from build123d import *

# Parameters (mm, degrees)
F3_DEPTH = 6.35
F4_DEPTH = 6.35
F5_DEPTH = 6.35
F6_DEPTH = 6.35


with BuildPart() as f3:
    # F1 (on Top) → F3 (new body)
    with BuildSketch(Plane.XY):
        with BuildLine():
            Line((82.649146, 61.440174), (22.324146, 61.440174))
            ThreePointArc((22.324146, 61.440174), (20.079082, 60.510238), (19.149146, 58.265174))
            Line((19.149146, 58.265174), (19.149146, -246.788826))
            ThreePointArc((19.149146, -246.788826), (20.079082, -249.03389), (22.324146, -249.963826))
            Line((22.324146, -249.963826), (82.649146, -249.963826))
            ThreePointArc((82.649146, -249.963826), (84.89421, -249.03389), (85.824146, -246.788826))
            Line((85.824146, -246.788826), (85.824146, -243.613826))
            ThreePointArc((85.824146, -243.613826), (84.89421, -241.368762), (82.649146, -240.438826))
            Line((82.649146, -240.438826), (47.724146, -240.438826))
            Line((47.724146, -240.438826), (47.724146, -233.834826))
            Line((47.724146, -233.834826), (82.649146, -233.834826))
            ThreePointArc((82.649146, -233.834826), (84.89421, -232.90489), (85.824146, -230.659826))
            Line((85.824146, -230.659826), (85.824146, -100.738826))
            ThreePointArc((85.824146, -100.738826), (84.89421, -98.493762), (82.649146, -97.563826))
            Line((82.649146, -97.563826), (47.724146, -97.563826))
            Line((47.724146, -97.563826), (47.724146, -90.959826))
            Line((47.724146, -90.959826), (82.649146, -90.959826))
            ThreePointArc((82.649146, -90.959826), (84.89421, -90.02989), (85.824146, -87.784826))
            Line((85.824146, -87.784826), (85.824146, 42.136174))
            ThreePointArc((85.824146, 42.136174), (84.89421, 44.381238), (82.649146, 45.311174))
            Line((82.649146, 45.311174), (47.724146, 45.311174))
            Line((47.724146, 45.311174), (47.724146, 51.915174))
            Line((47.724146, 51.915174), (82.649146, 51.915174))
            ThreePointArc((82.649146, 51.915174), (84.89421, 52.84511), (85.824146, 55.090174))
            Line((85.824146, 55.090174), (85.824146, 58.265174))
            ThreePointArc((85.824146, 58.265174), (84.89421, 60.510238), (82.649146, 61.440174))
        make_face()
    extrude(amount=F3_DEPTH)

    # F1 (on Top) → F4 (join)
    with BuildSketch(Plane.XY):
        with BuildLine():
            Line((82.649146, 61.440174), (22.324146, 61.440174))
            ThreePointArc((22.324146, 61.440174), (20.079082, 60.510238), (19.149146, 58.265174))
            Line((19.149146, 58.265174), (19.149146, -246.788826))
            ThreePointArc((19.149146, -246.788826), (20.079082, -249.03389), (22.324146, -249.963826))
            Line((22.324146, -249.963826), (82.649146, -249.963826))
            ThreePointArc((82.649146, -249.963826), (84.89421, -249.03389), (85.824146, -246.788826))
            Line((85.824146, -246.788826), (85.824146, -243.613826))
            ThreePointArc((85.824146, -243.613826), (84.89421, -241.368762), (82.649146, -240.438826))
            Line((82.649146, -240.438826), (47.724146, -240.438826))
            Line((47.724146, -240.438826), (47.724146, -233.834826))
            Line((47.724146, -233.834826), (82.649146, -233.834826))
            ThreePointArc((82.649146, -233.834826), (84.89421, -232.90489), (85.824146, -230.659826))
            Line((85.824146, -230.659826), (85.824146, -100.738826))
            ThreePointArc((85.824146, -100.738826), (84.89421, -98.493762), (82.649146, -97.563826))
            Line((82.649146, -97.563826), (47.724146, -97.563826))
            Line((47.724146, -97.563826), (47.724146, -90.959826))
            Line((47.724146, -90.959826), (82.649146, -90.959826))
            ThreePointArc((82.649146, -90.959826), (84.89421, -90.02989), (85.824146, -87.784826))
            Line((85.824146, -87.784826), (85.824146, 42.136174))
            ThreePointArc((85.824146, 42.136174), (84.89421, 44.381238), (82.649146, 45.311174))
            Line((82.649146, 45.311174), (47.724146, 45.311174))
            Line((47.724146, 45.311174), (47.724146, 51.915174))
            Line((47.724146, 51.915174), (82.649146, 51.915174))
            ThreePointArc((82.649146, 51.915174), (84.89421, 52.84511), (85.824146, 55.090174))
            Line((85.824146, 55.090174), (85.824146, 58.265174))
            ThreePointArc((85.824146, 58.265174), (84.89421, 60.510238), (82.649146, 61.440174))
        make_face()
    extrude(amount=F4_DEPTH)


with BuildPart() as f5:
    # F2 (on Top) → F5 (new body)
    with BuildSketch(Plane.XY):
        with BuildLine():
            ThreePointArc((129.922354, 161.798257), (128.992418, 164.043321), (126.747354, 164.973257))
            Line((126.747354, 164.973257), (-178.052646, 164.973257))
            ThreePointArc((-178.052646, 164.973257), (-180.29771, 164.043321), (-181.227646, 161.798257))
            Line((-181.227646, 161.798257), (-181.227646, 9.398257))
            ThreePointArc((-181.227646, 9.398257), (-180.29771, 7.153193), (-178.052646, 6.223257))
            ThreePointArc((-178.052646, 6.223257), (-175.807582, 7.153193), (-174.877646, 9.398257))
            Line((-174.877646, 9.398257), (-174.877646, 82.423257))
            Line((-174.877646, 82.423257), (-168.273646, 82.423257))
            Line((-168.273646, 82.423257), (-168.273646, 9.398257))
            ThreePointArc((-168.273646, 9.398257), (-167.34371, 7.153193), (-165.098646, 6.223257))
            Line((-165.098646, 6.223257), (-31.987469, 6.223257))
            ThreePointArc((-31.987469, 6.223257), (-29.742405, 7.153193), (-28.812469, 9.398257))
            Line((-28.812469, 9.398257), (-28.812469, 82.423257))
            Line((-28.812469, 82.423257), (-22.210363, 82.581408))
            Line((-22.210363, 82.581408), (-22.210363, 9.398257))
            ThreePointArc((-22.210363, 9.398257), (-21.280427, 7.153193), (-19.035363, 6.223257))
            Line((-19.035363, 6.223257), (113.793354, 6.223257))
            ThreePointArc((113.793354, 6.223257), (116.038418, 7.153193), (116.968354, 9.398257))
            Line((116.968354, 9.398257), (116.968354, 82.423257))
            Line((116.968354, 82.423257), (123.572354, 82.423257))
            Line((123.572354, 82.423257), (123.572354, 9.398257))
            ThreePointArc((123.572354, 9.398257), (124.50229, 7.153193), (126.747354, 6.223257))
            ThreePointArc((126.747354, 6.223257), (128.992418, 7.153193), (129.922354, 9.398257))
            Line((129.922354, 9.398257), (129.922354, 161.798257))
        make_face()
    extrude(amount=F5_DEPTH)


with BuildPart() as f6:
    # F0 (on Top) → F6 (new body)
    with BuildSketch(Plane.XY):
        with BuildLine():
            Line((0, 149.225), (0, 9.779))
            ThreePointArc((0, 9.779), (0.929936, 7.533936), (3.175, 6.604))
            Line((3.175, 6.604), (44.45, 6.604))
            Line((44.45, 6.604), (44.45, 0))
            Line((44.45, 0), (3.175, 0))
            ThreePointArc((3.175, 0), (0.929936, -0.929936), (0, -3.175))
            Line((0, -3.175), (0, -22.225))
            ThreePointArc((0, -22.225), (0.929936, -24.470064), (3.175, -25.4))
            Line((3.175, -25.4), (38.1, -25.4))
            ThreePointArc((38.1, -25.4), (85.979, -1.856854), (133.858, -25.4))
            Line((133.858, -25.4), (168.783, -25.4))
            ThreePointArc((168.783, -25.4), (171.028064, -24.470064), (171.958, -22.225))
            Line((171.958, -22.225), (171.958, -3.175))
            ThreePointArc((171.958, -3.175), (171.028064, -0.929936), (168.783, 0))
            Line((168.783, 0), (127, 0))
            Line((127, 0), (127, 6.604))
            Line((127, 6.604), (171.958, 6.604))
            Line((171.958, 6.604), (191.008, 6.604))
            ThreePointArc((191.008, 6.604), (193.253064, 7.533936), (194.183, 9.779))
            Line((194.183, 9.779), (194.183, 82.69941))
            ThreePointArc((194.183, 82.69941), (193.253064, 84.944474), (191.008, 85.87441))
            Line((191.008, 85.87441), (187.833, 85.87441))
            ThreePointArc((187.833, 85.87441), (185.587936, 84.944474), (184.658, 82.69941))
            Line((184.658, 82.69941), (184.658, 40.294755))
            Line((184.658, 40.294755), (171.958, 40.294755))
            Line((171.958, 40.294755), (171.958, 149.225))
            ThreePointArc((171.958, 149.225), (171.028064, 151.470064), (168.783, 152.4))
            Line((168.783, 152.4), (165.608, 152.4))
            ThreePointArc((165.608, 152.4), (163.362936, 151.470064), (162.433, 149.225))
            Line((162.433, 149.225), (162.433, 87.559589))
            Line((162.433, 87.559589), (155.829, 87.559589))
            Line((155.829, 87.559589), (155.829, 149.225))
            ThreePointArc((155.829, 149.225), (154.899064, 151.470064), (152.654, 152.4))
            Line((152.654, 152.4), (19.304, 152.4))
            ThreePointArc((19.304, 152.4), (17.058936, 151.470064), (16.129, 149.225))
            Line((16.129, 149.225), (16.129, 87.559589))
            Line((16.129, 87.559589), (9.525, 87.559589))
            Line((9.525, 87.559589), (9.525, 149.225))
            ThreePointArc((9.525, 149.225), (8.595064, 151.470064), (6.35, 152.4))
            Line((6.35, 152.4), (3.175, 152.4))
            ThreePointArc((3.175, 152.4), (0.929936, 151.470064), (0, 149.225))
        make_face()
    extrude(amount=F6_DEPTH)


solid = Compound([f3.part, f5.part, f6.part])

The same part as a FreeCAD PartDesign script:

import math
import FreeCAD as App
import Part
import Sketcher

V = App.Vector
Q = App.Units.Quantity

doc = App.newDocument("Part")
params = doc.addObject("Spreadsheet::Sheet", "Params")
for row, (alias, value) in enumerate([
    ("sketch1_radius", "0.125 in"),
    ("sketch1_height", "12.01 in"),
    ("sketch1_height2", "0.26 in"),
    ("sketch1_height3", "0.125 in"),
    ("pad1_length", "0.25 in"),
    ("sketch2_radius", "0.125 in"),
    ("sketch2_height", "12.01 in"),
    ("sketch2_height2", "0.26 in"),
    ("sketch2_height3", "0.125 in"),
    ("pad2_length", "0.25 in"),
    ("sketch3_width", "12 in"),
    ("sketch3_height", "6 in"),
    ("sketch3_radius", "0.125 in"),
    ("sketch3_width2", "0.26 in"),
    ("sketch3_length", "0.26 in"),
    ("pad3_length", "0.25 in"),
    ("sketch4_width", "0.5 in"),
    ("sketch4_radius", "0.125 in"),
    ("sketch4_width2", "2.52 in"),
    ("sketch4_width3", "0.26 in"),
    ("sketch4_width4", "1.625 in"),
    ("pad4_length", "0.25 in"),
], start=1):
    params.set(f"A{row}", alias)
    params.set(f"B{row}", "=" + value)
    params.setAlias(f"B{row}", alias)

body = doc.addObject("PartDesign::Body", "Body")

sketch1 = body.newObject("Sketcher::SketchObject", "Sketch")
sketch1.AttachmentSupport = (doc.getObject("XY_Plane"), [""])
sketch1.MapMode = "FlatFace"
sketch1.addGeometry(Part.LineSegment(V(82.6, 61.4, 0), V(22.3, 61.4, 0)), False)
sketch1.addGeometry(Part.ArcOfCircle(Part.Circle(V(22.3, 58.3, 0), V(0, 0, 1), 3.2), math.radians(90), math.radians(180)), False)
sketch1.addGeometry(Part.LineSegment(V(19.1, 58.3, 0), V(19.1, -246.8, 0)), False)
sketch1.addGeometry(Part.ArcOfCircle(Part.Circle(V(22.3, -246.8, 0), V(0, 0, 1), 3.2), math.radians(-180), math.radians(-90)), False)
sketch1.addGeometry(Part.LineSegment(V(22.3, -250, 0), V(82.6, -250, 0)), False)
sketch1.addGeometry(Part.ArcOfCircle(Part.Circle(V(82.6, -246.8, 0), V(0, 0, 1), 3.2), math.radians(-90), math.radians(0)), False)
sketch1.addGeometry(Part.LineSegment(V(85.8, -246.8, 0), V(85.8, -243.6, 0)), False)
sketch1.addGeometry(Part.ArcOfCircle(Part.Circle(V(82.6, -243.6, 0), V(0, 0, 1), 3.2), math.radians(0), math.radians(90)), False)
sketch1.addGeometry(Part.LineSegment(V(82.6, -240.4, 0), V(47.7, -240.4, 0)), False)
sketch1.addGeometry(Part.LineSegment(V(47.7, -240.4, 0), V(47.7, -233.8, 0)), False)
sketch1.addGeometry(Part.LineSegment(V(47.7, -233.8, 0), V(82.6, -233.8, 0)), False)
sketch1.addGeometry(Part.ArcOfCircle(Part.Circle(V(82.6, -230.7, 0), V(0, 0, 1), 3.2), math.radians(-90), math.radians(0)), False)
sketch1.addGeometry(Part.LineSegment(V(85.8, -230.7, 0), V(85.8, -100.7, 0)), False)
sketch1.addGeometry(Part.ArcOfCircle(Part.Circle(V(82.6, -100.7, 0), V(0, 0, 1), 3.2), math.radians(0), math.radians(90)), False)
sketch1.addGeometry(Part.LineSegment(V(82.6, -97.6, 0), V(47.7, -97.6, 0)), False)
sketch1.addGeometry(Part.LineSegment(V(47.7, -97.6, 0), V(47.7, -91, 0)), False)
sketch1.addGeometry(Part.LineSegment(V(47.7, -91, 0), V(82.6, -91, 0)), False)
sketch1.addGeometry(Part.ArcOfCircle(Part.Circle(V(82.6, -87.8, 0), V(0, 0, 1), 3.2), math.radians(-90), math.radians(0)), False)
sketch1.addGeometry(Part.LineSegment(V(85.8, -87.8, 0), V(85.8, 42.1, 0)), False)
sketch1.addGeometry(Part.ArcOfCircle(Part.Circle(V(82.6, 42.1, 0), V(0, 0, 1), 3.2), math.radians(0), math.radians(90)), False)
sketch1.addGeometry(Part.LineSegment(V(82.6, 45.3, 0), V(47.7, 45.3, 0)), False)
sketch1.addGeometry(Part.LineSegment(V(47.7, 45.3, 0), V(47.7, 51.9, 0)), False)
sketch1.addGeometry(Part.LineSegment(V(47.7, 51.9, 0), V(82.6, 51.9, 0)), False)
sketch1.addGeometry(Part.ArcOfCircle(Part.Circle(V(82.6, 55.1, 0), V(0, 0, 1), 3.2), math.radians(-90), math.radians(0)), False)
sketch1.addGeometry(Part.LineSegment(V(85.8, 55.1, 0), V(85.8, 58.3, 0)), False)
sketch1.addGeometry(Part.ArcOfCircle(Part.Circle(V(82.6, 58.3, 0), V(0, 0, 1), 3.2), math.radians(0), math.radians(90)), False)
sketch1.addConstraint(Sketcher.Constraint("Tangent", 0, 2, 1, 1))
sketch1.addConstraint(Sketcher.Constraint("Tangent", 1, 2, 2, 1))
sketch1.addConstraint(Sketcher.Constraint("Tangent", 2, 2, 3, 1))
sketch1.addConstraint(Sketcher.Constraint("Tangent", 3, 2, 4, 1))
sketch1.addConstraint(Sketcher.Constraint("Tangent", 4, 2, 5, 1))
sketch1.addConstraint(Sketcher.Constraint("Tangent", 5, 2, 6, 1))
sketch1.addConstraint(Sketcher.Constraint("Tangent", 6, 2, 7, 1))
sketch1.addConstraint(Sketcher.Constraint("Tangent", 7, 2, 8, 1))
sketch1.addConstraint(Sketcher.Constraint("Coincident", 8, 2, 9, 1))
sketch1.addConstraint(Sketcher.Constraint("Coincident", 9, 2, 10, 1))
sketch1.addConstraint(Sketcher.Constraint("Tangent", 10, 2, 11, 1))
sketch1.addConstraint(Sketcher.Constraint("Tangent", 11, 2, 12, 1))
sketch1.addConstraint(Sketcher.Constraint("Tangent", 12, 2, 13, 1))
sketch1.addConstraint(Sketcher.Constraint("Tangent", 13, 2, 14, 1))
sketch1.addConstraint(Sketcher.Constraint("Coincident", 14, 2, 15, 1))
sketch1.addConstraint(Sketcher.Constraint("Coincident", 15, 2, 16, 1))
sketch1.addConstraint(Sketcher.Constraint("Tangent", 16, 2, 17, 1))
sketch1.addConstraint(Sketcher.Constraint("Tangent", 17, 2, 18, 1))
sketch1.addConstraint(Sketcher.Constraint("Tangent", 18, 2, 19, 1))
sketch1.addConstraint(Sketcher.Constraint("Tangent", 19, 2, 20, 1))
sketch1.addConstraint(Sketcher.Constraint("Coincident", 20, 2, 21, 1))
sketch1.addConstraint(Sketcher.Constraint("Coincident", 21, 2, 22, 1))
sketch1.addConstraint(Sketcher.Constraint("Tangent", 22, 2, 23, 1))
sketch1.addConstraint(Sketcher.Constraint("Tangent", 23, 2, 24, 1))
sketch1.addConstraint(Sketcher.Constraint("Tangent", 24, 2, 25, 1))
sketch1.addConstraint(Sketcher.Constraint("Tangent", 25, 2, 0, 1))
sketch1.addConstraint(Sketcher.Constraint("Horizontal", 0))
sketch1.addConstraint(Sketcher.Constraint("Vertical", 2))
sketch1.addConstraint(Sketcher.Constraint("Horizontal", 4))
sketch1.addConstraint(Sketcher.Constraint("Vertical", 6))
sketch1.addConstraint(Sketcher.Constraint("Horizontal", 8))
sketch1.addConstraint(Sketcher.Constraint("Vertical", 9))
sketch1.addConstraint(Sketcher.Constraint("Horizontal", 10))
sketch1.addConstraint(Sketcher.Constraint("Vertical", 12))
sketch1.addConstraint(Sketcher.Constraint("Horizontal", 14))
sketch1.addConstraint(Sketcher.Constraint("Vertical", 15))
sketch1.addConstraint(Sketcher.Constraint("Horizontal", 16))
sketch1.addConstraint(Sketcher.Constraint("Vertical", 18))
sketch1.addConstraint(Sketcher.Constraint("Horizontal", 20))
sketch1.addConstraint(Sketcher.Constraint("Vertical", 21))
sketch1.addConstraint(Sketcher.Constraint("Horizontal", 22))
sketch1.addConstraint(Sketcher.Constraint("Vertical", 24))
sketch1.addConstraint(Sketcher.Constraint("Equal", 1, 3))
sketch1.addConstraint(Sketcher.Constraint("Equal", 3, 5))
sketch1.addConstraint(Sketcher.Constraint("Equal", 5, 7))
sketch1.addConstraint(Sketcher.Constraint("Equal", 7, 11))
sketch1.addConstraint(Sketcher.Constraint("Equal", 11, 13))
sketch1.addConstraint(Sketcher.Constraint("Equal", 13, 17))
sketch1.addConstraint(Sketcher.Constraint("Equal", 17, 19))
sketch1.addConstraint(Sketcher.Constraint("Equal", 19, 23))
sketch1.addConstraint(Sketcher.Constraint("Equal", 23, 25))
sketch1.addConstraint(Sketcher.Constraint("Vertical", 7, 3, 11, 3))
sketch1.addConstraint(Sketcher.Constraint("Vertical", 13, 3, 17, 3))
sketch1.addConstraint(Sketcher.Constraint("Vertical", 19, 3, 23, 3))
sketch1.addConstraint(Sketcher.Constraint("Vertical", 9, 2, 14, 2))
sketch1.addConstraint(Sketcher.Constraint("Vertical", 15, 2, 20, 2))
sketch1.addConstraint(Sketcher.Constraint("Equal", 9, 15))
sketch1.addConstraint(Sketcher.Constraint("Equal", 12, 18))
sketch1.addConstraint(Sketcher.Constraint("Equal", 15, 21))
sketch1.addConstraint(Sketcher.Constraint("Equal", 6, 24))
sketch1.addConstraint(Sketcher.Constraint("Radius", 1, Q("0.125 in")))
sketch1.addConstraint(Sketcher.Constraint("DistanceX", 3, 3, 8, 2, Q("1 in")))
sketch1.addConstraint(Sketcher.Constraint("DistanceY", 2, 2, 2, 1, Q("12.01 in")))
sketch1.addConstraint(Sketcher.Constraint("DistanceY", 9, 1, 9, 2, Q("0.26 in")))
sketch1.addConstraint(Sketcher.Constraint("DistanceX", 1, 2, 25, 3, Q("2.5 in")))
sketch1.addConstraint(Sketcher.Constraint("DistanceY", 6, 1, 6, 2, Q("0.125 in")))
sketch1.addConstraint(Sketcher.Constraint("DistanceX", -1, 1, 1, 3, Q("22.324146 mm")))
sketch1.addConstraint(Sketcher.Constraint("DistanceY", -1, 1, 1, 3, Q("58.265174 mm")))
sketch1.setExpression("Constraints[60]", "Params.sketch1_radius")
sketch1.setExpression("Constraints[62]", "Params.sketch1_height")
sketch1.setExpression("Constraints[63]", "Params.sketch1_height2")
sketch1.setExpression("Constraints[65]", "Params.sketch1_height3")
pad1 = body.newObject("PartDesign::Pad", "Pad")
pad1.Profile = sketch1
pad1.setExpression("Length", "Params.pad1_length")

sketch2 = body.newObject("Sketcher::SketchObject", "Sketch001")
sketch2.AttachmentSupport = (doc.getObject("XY_Plane"), [""])
sketch2.MapMode = "FlatFace"
sketch2.addGeometry(Part.LineSegment(V(82.6, 61.4, 0), V(22.3, 61.4, 0)), False)
sketch2.addGeometry(Part.ArcOfCircle(Part.Circle(V(22.3, 58.3, 0), V(0, 0, 1), 3.2), math.radians(90), math.radians(180)), False)
sketch2.addGeometry(Part.LineSegment(V(19.1, 58.3, 0), V(19.1, -246.8, 0)), False)
sketch2.addGeometry(Part.ArcOfCircle(Part.Circle(V(22.3, -246.8, 0), V(0, 0, 1), 3.2), math.radians(-180), math.radians(-90)), False)
sketch2.addGeometry(Part.LineSegment(V(22.3, -250, 0), V(82.6, -250, 0)), False)
sketch2.addGeometry(Part.ArcOfCircle(Part.Circle(V(82.6, -246.8, 0), V(0, 0, 1), 3.2), math.radians(-90), math.radians(0)), False)
sketch2.addGeometry(Part.LineSegment(V(85.8, -246.8, 0), V(85.8, -243.6, 0)), False)
sketch2.addGeometry(Part.ArcOfCircle(Part.Circle(V(82.6, -243.6, 0), V(0, 0, 1), 3.2), math.radians(0), math.radians(90)), False)
sketch2.addGeometry(Part.LineSegment(V(82.6, -240.4, 0), V(47.7, -240.4, 0)), False)
sketch2.addGeometry(Part.LineSegment(V(47.7, -240.4, 0), V(47.7, -233.8, 0)), False)
sketch2.addGeometry(Part.LineSegment(V(47.7, -233.8, 0), V(82.6, -233.8, 0)), False)
sketch2.addGeometry(Part.ArcOfCircle(Part.Circle(V(82.6, -230.7, 0), V(0, 0, 1), 3.2), math.radians(-90), math.radians(0)), False)
sketch2.addGeometry(Part.LineSegment(V(85.8, -230.7, 0), V(85.8, -100.7, 0)), False)
sketch2.addGeometry(Part.ArcOfCircle(Part.Circle(V(82.6, -100.7, 0), V(0, 0, 1), 3.2), math.radians(0), math.radians(90)), False)
sketch2.addGeometry(Part.LineSegment(V(82.6, -97.6, 0), V(47.7, -97.6, 0)), False)
sketch2.addGeometry(Part.LineSegment(V(47.7, -97.6, 0), V(47.7, -91, 0)), False)
sketch2.addGeometry(Part.LineSegment(V(47.7, -91, 0), V(82.6, -91, 0)), False)
sketch2.addGeometry(Part.ArcOfCircle(Part.Circle(V(82.6, -87.8, 0), V(0, 0, 1), 3.2), math.radians(-90), math.radians(0)), False)
sketch2.addGeometry(Part.LineSegment(V(85.8, -87.8, 0), V(85.8, 42.1, 0)), False)
sketch2.addGeometry(Part.ArcOfCircle(Part.Circle(V(82.6, 42.1, 0), V(0, 0, 1), 3.2), math.radians(0), math.radians(90)), False)
sketch2.addGeometry(Part.LineSegment(V(82.6, 45.3, 0), V(47.7, 45.3, 0)), False)
sketch2.addGeometry(Part.LineSegment(V(47.7, 45.3, 0), V(47.7, 51.9, 0)), False)
sketch2.addGeometry(Part.LineSegment(V(47.7, 51.9, 0), V(82.6, 51.9, 0)), False)
sketch2.addGeometry(Part.ArcOfCircle(Part.Circle(V(82.6, 55.1, 0), V(0, 0, 1), 3.2), math.radians(-90), math.radians(0)), False)
sketch2.addGeometry(Part.LineSegment(V(85.8, 55.1, 0), V(85.8, 58.3, 0)), False)
sketch2.addGeometry(Part.ArcOfCircle(Part.Circle(V(82.6, 58.3, 0), V(0, 0, 1), 3.2), math.radians(0), math.radians(90)), False)
sketch2.addConstraint(Sketcher.Constraint("Tangent", 0, 2, 1, 1))
sketch2.addConstraint(Sketcher.Constraint("Tangent", 1, 2, 2, 1))
sketch2.addConstraint(Sketcher.Constraint("Tangent", 2, 2, 3, 1))
sketch2.addConstraint(Sketcher.Constraint("Tangent", 3, 2, 4, 1))
sketch2.addConstraint(Sketcher.Constraint("Tangent", 4, 2, 5, 1))
sketch2.addConstraint(Sketcher.Constraint("Tangent", 5, 2, 6, 1))
sketch2.addConstraint(Sketcher.Constraint("Tangent", 6, 2, 7, 1))
sketch2.addConstraint(Sketcher.Constraint("Tangent", 7, 2, 8, 1))
sketch2.addConstraint(Sketcher.Constraint("Coincident", 8, 2, 9, 1))
sketch2.addConstraint(Sketcher.Constraint("Coincident", 9, 2, 10, 1))
sketch2.addConstraint(Sketcher.Constraint("Tangent", 10, 2, 11, 1))
sketch2.addConstraint(Sketcher.Constraint("Tangent", 11, 2, 12, 1))
sketch2.addConstraint(Sketcher.Constraint("Tangent", 12, 2, 13, 1))
sketch2.addConstraint(Sketcher.Constraint("Tangent", 13, 2, 14, 1))
sketch2.addConstraint(Sketcher.Constraint("Coincident", 14, 2, 15, 1))
sketch2.addConstraint(Sketcher.Constraint("Coincident", 15, 2, 16, 1))
sketch2.addConstraint(Sketcher.Constraint("Tangent", 16, 2, 17, 1))
sketch2.addConstraint(Sketcher.Constraint("Tangent", 17, 2, 18, 1))
sketch2.addConstraint(Sketcher.Constraint("Tangent", 18, 2, 19, 1))
sketch2.addConstraint(Sketcher.Constraint("Tangent", 19, 2, 20, 1))
sketch2.addConstraint(Sketcher.Constraint("Coincident", 20, 2, 21, 1))
sketch2.addConstraint(Sketcher.Constraint("Coincident", 21, 2, 22, 1))
sketch2.addConstraint(Sketcher.Constraint("Tangent", 22, 2, 23, 1))
sketch2.addConstraint(Sketcher.Constraint("Tangent", 23, 2, 24, 1))
sketch2.addConstraint(Sketcher.Constraint("Tangent", 24, 2, 25, 1))
sketch2.addConstraint(Sketcher.Constraint("Tangent", 25, 2, 0, 1))
sketch2.addConstraint(Sketcher.Constraint("Horizontal", 0))
sketch2.addConstraint(Sketcher.Constraint("Vertical", 2))
sketch2.addConstraint(Sketcher.Constraint("Horizontal", 4))
sketch2.addConstraint(Sketcher.Constraint("Vertical", 6))
sketch2.addConstraint(Sketcher.Constraint("Horizontal", 8))
sketch2.addConstraint(Sketcher.Constraint("Vertical", 9))
sketch2.addConstraint(Sketcher.Constraint("Horizontal", 10))
sketch2.addConstraint(Sketcher.Constraint("Vertical", 12))
sketch2.addConstraint(Sketcher.Constraint("Horizontal", 14))
sketch2.addConstraint(Sketcher.Constraint("Vertical", 15))
sketch2.addConstraint(Sketcher.Constraint("Horizontal", 16))
sketch2.addConstraint(Sketcher.Constraint("Vertical", 18))
sketch2.addConstraint(Sketcher.Constraint("Horizontal", 20))
sketch2.addConstraint(Sketcher.Constraint("Vertical", 21))
sketch2.addConstraint(Sketcher.Constraint("Horizontal", 22))
sketch2.addConstraint(Sketcher.Constraint("Vertical", 24))
sketch2.addConstraint(Sketcher.Constraint("Equal", 1, 3))
sketch2.addConstraint(Sketcher.Constraint("Equal", 3, 5))
sketch2.addConstraint(Sketcher.Constraint("Equal", 5, 7))
sketch2.addConstraint(Sketcher.Constraint("Equal", 7, 11))
sketch2.addConstraint(Sketcher.Constraint("Equal", 11, 13))
sketch2.addConstraint(Sketcher.Constraint("Equal", 13, 17))
sketch2.addConstraint(Sketcher.Constraint("Equal", 17, 19))
sketch2.addConstraint(Sketcher.Constraint("Equal", 19, 23))
sketch2.addConstraint(Sketcher.Constraint("Equal", 23, 25))
sketch2.addConstraint(Sketcher.Constraint("Vertical", 7, 3, 11, 3))
sketch2.addConstraint(Sketcher.Constraint("Vertical", 13, 3, 17, 3))
sketch2.addConstraint(Sketcher.Constraint("Vertical", 19, 3, 23, 3))
sketch2.addConstraint(Sketcher.Constraint("Vertical", 9, 2, 14, 2))
sketch2.addConstraint(Sketcher.Constraint("Vertical", 15, 2, 20, 2))
sketch2.addConstraint(Sketcher.Constraint("Equal", 9, 15))
sketch2.addConstraint(Sketcher.Constraint("Equal", 12, 18))
sketch2.addConstraint(Sketcher.Constraint("Equal", 15, 21))
sketch2.addConstraint(Sketcher.Constraint("Equal", 6, 24))
sketch2.addConstraint(Sketcher.Constraint("Radius", 1, Q("0.125 in")))
sketch2.addConstraint(Sketcher.Constraint("DistanceX", 3, 3, 8, 2, Q("1 in")))
sketch2.addConstraint(Sketcher.Constraint("DistanceY", 2, 2, 2, 1, Q("12.01 in")))
sketch2.addConstraint(Sketcher.Constraint("DistanceY", 9, 1, 9, 2, Q("0.26 in")))
sketch2.addConstraint(Sketcher.Constraint("DistanceX", 1, 2, 25, 3, Q("2.5 in")))
sketch2.addConstraint(Sketcher.Constraint("DistanceY", 6, 1, 6, 2, Q("0.125 in")))
sketch2.addConstraint(Sketcher.Constraint("DistanceX", -1, 1, 1, 3, Q("22.324146 mm")))
sketch2.addConstraint(Sketcher.Constraint("DistanceY", -1, 1, 1, 3, Q("58.265174 mm")))
sketch2.setExpression("Constraints[60]", "Params.sketch2_radius")
sketch2.setExpression("Constraints[62]", "Params.sketch2_height")
sketch2.setExpression("Constraints[63]", "Params.sketch2_height2")
sketch2.setExpression("Constraints[65]", "Params.sketch2_height3")
pad2 = body.newObject("PartDesign::Pad", "Pad001")
pad2.Profile = sketch2
pad2.setExpression("Length", "Params.pad2_length")
body2 = doc.addObject("PartDesign::Body", "Body001")

sketch3 = body2.newObject("Sketcher::SketchObject", "Sketch002")
sketch3.AttachmentSupport = (doc.getObject("XY_Plane001"), [""])
sketch3.MapMode = "FlatFace"
sketch3.addGeometry(Part.ArcOfCircle(Part.Circle(V(126.7, 161.8, 0), V(0, 0, 1), 3.2), math.radians(0), math.radians(90)), False)
sketch3.addGeometry(Part.LineSegment(V(126.7, 165, 0), V(-178.1, 165, 0)), False)
sketch3.addGeometry(Part.ArcOfCircle(Part.Circle(V(-178.1, 161.8, 0), V(0, 0, 1), 3.2), math.radians(90), math.radians(180)), False)
sketch3.addGeometry(Part.LineSegment(V(-181.2, 161.8, 0), V(-181.2, 9.4, 0)), False)
sketch3.addGeometry(Part.ArcOfCircle(Part.Circle(V(-178.1, 9.4, 0), V(0, 0, 1), 3.2), math.radians(-180), math.radians(-90)), False)
sketch3.addGeometry(Part.ArcOfCircle(Part.Circle(V(-178.1, 9.4, 0), V(0, 0, 1), 3.2), math.radians(-90), math.radians(0)), False)
sketch3.addGeometry(Part.LineSegment(V(-174.9, 9.4, 0), V(-174.9, 82.4, 0)), False)
sketch3.addGeometry(Part.LineSegment(V(-174.9, 82.4, 0), V(-168.3, 82.4, 0)), False)
sketch3.addGeometry(Part.LineSegment(V(-168.3, 82.4, 0), V(-168.3, 9.4, 0)), False)
sketch3.addGeometry(Part.ArcOfCircle(Part.Circle(V(-165.1, 9.4, 0), V(0, 0, 1), 3.2), math.radians(-180), math.radians(-90)), False)
sketch3.addGeometry(Part.LineSegment(V(-165.1, 6.2, 0), V(-32, 6.2, 0)), False)
sketch3.addGeometry(Part.ArcOfCircle(Part.Circle(V(-32, 9.4, 0), V(0, 0, 1), 3.2), math.radians(-90), math.radians(0)), False)
sketch3.addGeometry(Part.LineSegment(V(-28.8, 9.4, 0), V(-28.8, 82.4, 0)), False)
sketch3.addGeometry(Part.LineSegment(V(-28.8, 82.4, 0), V(-22.2, 82.6, 0)), False)
sketch3.addGeometry(Part.LineSegment(V(-22.2, 82.6, 0), V(-22.2, 9.4, 0)), False)
sketch3.addGeometry(Part.ArcOfCircle(Part.Circle(V(-19, 9.4, 0), V(0, 0, 1), 3.2), math.radians(-180), math.radians(-90)), False)
sketch3.addGeometry(Part.LineSegment(V(-19, 6.2, 0), V(113.8, 6.2, 0)), False)
sketch3.addGeometry(Part.ArcOfCircle(Part.Circle(V(113.8, 9.4, 0), V(0, 0, 1), 3.2), math.radians(-90), math.radians(0)), False)
sketch3.addGeometry(Part.LineSegment(V(117, 9.4, 0), V(117, 82.4, 0)), False)
sketch3.addGeometry(Part.LineSegment(V(117, 82.4, 0), V(123.6, 82.4, 0)), False)
sketch3.addGeometry(Part.LineSegment(V(123.6, 82.4, 0), V(123.6, 9.4, 0)), False)
sketch3.addGeometry(Part.ArcOfCircle(Part.Circle(V(126.7, 9.4, 0), V(0, 0, 1), 3.2), math.radians(-180), math.radians(-90)), False)
sketch3.addGeometry(Part.ArcOfCircle(Part.Circle(V(126.7, 9.4, 0), V(0, 0, 1), 3.2), math.radians(-90), math.radians(0)), False)
sketch3.addGeometry(Part.LineSegment(V(129.9, 9.4, 0), V(129.9, 161.8, 0)), False)
sketch3.addConstraint(Sketcher.Constraint("Tangent", 0, 2, 1, 1))
sketch3.addConstraint(Sketcher.Constraint("Tangent", 1, 2, 2, 1))
sketch3.addConstraint(Sketcher.Constraint("Tangent", 2, 2, 3, 1))
sketch3.addConstraint(Sketcher.Constraint("Tangent", 3, 2, 4, 1))
sketch3.addConstraint(Sketcher.Constraint("Tangent", 4, 2, 5, 1))
sketch3.addConstraint(Sketcher.Constraint("Tangent", 5, 2, 6, 1))
sketch3.addConstraint(Sketcher.Constraint("Coincident", 6, 2, 7, 1))
sketch3.addConstraint(Sketcher.Constraint("Coincident", 7, 2, 8, 1))
sketch3.addConstraint(Sketcher.Constraint("Tangent", 8, 2, 9, 1))
sketch3.addConstraint(Sketcher.Constraint("Tangent", 9, 2, 10, 1))
sketch3.addConstraint(Sketcher.Constraint("Tangent", 10, 2, 11, 1))
sketch3.addConstraint(Sketcher.Constraint("Tangent", 11, 2, 12, 1))
sketch3.addConstraint(Sketcher.Constraint("Coincident", 12, 2, 13, 1))
sketch3.addConstraint(Sketcher.Constraint("Coincident", 13, 2, 14, 1))
sketch3.addConstraint(Sketcher.Constraint("Tangent", 14, 2, 15, 1))
sketch3.addConstraint(Sketcher.Constraint("Tangent", 15, 2, 16, 1))
sketch3.addConstraint(Sketcher.Constraint("Tangent", 16, 2, 17, 1))
sketch3.addConstraint(Sketcher.Constraint("Tangent", 17, 2, 18, 1))
sketch3.addConstraint(Sketcher.Constraint("Coincident", 18, 2, 19, 1))
sketch3.addConstraint(Sketcher.Constraint("Coincident", 19, 2, 20, 1))
sketch3.addConstraint(Sketcher.Constraint("Tangent", 20, 2, 21, 1))
sketch3.addConstraint(Sketcher.Constraint("Tangent", 21, 2, 22, 1))
sketch3.addConstraint(Sketcher.Constraint("Tangent", 22, 2, 23, 1))
sketch3.addConstraint(Sketcher.Constraint("Tangent", 23, 2, 0, 1))
sketch3.addConstraint(Sketcher.Constraint("Horizontal", 1))
sketch3.addConstraint(Sketcher.Constraint("Vertical", 3))
sketch3.addConstraint(Sketcher.Constraint("Vertical", 6))
sketch3.addConstraint(Sketcher.Constraint("Horizontal", 7))
sketch3.addConstraint(Sketcher.Constraint("Vertical", 8))
sketch3.addConstraint(Sketcher.Constraint("Horizontal", 10))
sketch3.addConstraint(Sketcher.Constraint("Vertical", 12))
sketch3.addConstraint(Sketcher.Constraint("Vertical", 14))
sketch3.addConstraint(Sketcher.Constraint("Horizontal", 16))
sketch3.addConstraint(Sketcher.Constraint("Vertical", 18))
sketch3.addConstraint(Sketcher.Constraint("Horizontal", 19))
sketch3.addConstraint(Sketcher.Constraint("Vertical", 20))
sketch3.addConstraint(Sketcher.Constraint("Vertical", 23))
sketch3.addConstraint(Sketcher.Constraint("Equal", 0, 2))
sketch3.addConstraint(Sketcher.Constraint("Equal", 2, 4))
sketch3.addConstraint(Sketcher.Constraint("Equal", 4, 5))
sketch3.addConstraint(Sketcher.Constraint("Equal", 5, 9))
sketch3.addConstraint(Sketcher.Constraint("Equal", 9, 11))
sketch3.addConstraint(Sketcher.Constraint("Equal", 11, 15))
sketch3.addConstraint(Sketcher.Constraint("Equal", 15, 17))
sketch3.addConstraint(Sketcher.Constraint("Equal", 17, 21))
sketch3.addConstraint(Sketcher.Constraint("Equal", 21, 22))
sketch3.addConstraint(Sketcher.Constraint("Horizontal", 5, 3, 9, 3))
sketch3.addConstraint(Sketcher.Constraint("Horizontal", 11, 3, 15, 3))
sketch3.addConstraint(Sketcher.Constraint("Horizontal", 17, 3, 21, 3))
sketch3.addConstraint(Sketcher.Constraint("Horizontal", 7, 2, 12, 2))
sketch3.addConstraint(Sketcher.Constraint("Horizontal", 12, 2, 18, 2))
sketch3.addConstraint(Sketcher.Constraint("Vertical", 1, 2, 4, 2))
sketch3.addConstraint(Sketcher.Constraint("Vertical", 0, 2, 21, 2))
sketch3.addConstraint(Sketcher.Constraint("Equal", 7, 19))
sketch3.addConstraint(Sketcher.Constraint("DistanceX", 1, 2, 1, 1, Q("12 in")))
sketch3.addConstraint(Sketcher.Constraint("DistanceY", 3, 2, 3, 1, Q("6 in")))
sketch3.addConstraint(Sketcher.Constraint("Radius", 0, Q("0.125 in")))
sketch3.addConstraint(Sketcher.Constraint("DistanceY", 10, 2, 12, 2, Q("3 in")))
sketch3.addConstraint(Sketcher.Constraint("DistanceX", 7, 1, 7, 2, Q("0.26 in")))
sketch3.addConstraint(Sketcher.Constraint("Distance", 13, Q("0.26 in")))
sketch3.addConstraint(Sketcher.Constraint("DistanceY", 14, 2, 14, 1, Q("73.183151 mm")))
sketch3.addConstraint(Sketcher.Constraint("DistanceX", 10, 1, 10, 2, Q("133.111177 mm")))
sketch3.addConstraint(Sketcher.Constraint("DistanceX", 11, 3, -1, 1, Q("31.987469 mm")))
sketch3.addConstraint(Sketcher.Constraint("DistanceY", -1, 1, 0, 3, Q("161.798257 mm")))
sketch3.setExpression("Constraints[54]", "Params.sketch3_width")
sketch3.setExpression("Constraints[55]", "Params.sketch3_height")
sketch3.setExpression("Constraints[56]", "Params.sketch3_radius")
sketch3.setExpression("Constraints[58]", "Params.sketch3_width2")
sketch3.setExpression("Constraints[59]", "Params.sketch3_length")
pad3 = body2.newObject("PartDesign::Pad", "Pad002")
pad3.Profile = sketch3
pad3.setExpression("Length", "Params.pad3_length")
body3 = doc.addObject("PartDesign::Body", "Body002")

sketch4 = body3.newObject("Sketcher::SketchObject", "Sketch003")
sketch4.AttachmentSupport = (doc.getObject("XY_Plane002"), [""])
sketch4.MapMode = "FlatFace"
sketch4.addGeometry(Part.LineSegment(V(0, 149.2, 0), V(0, 9.8, 0)), False)
sketch4.addGeometry(Part.ArcOfCircle(Part.Circle(V(3.2, 9.8, 0), V(0, 0, 1), 3.2), math.radians(-180), math.radians(-90)), False)
sketch4.addGeometry(Part.LineSegment(V(3.2, 6.6, 0), V(44.5, 6.6, 0)), False)
sketch4.addGeometry(Part.LineSegment(V(44.5, 6.6, 0), V(44.5, 0, 0)), False)
sketch4.addGeometry(Part.LineSegment(V(44.5, 0, 0), V(3.2, 0, 0)), False)
sketch4.addGeometry(Part.ArcOfCircle(Part.Circle(V(3.2, -3.2, 0), V(0, 0, 1), 3.2), math.radians(90), math.radians(180)), False)
sketch4.addGeometry(Part.LineSegment(V(0, -3.2, 0), V(0, -22.2, 0)), False)
sketch4.addGeometry(Part.ArcOfCircle(Part.Circle(V(3.2, -22.2, 0), V(0, 0, 1), 3.2), math.radians(-180), math.radians(-90)), False)
sketch4.addGeometry(Part.LineSegment(V(3.2, -25.4, 0), V(38.1, -25.4, 0)), False)
sketch4.addGeometry(Part.ArcOfCircle(Part.Circle(V(86, -62.3, 0), V(0, 0, 1), 60.5), math.radians(38), math.radians(142)), False)
sketch4.addGeometry(Part.LineSegment(V(133.9, -25.4, 0), V(168.8, -25.4, 0)), False)
sketch4.addGeometry(Part.ArcOfCircle(Part.Circle(V(168.8, -22.2, 0), V(0, 0, 1), 3.2), math.radians(-90), math.radians(0)), False)
sketch4.addGeometry(Part.LineSegment(V(172, -22.2, 0), V(172, -3.2, 0)), False)
sketch4.addGeometry(Part.ArcOfCircle(Part.Circle(V(168.8, -3.2, 0), V(0, 0, 1), 3.2), math.radians(0), math.radians(90)), False)
sketch4.addGeometry(Part.LineSegment(V(168.8, 0, 0), V(127, 0, 0)), False)
sketch4.addGeometry(Part.LineSegment(V(127, 0, 0), V(127, 6.6, 0)), False)
sketch4.addGeometry(Part.LineSegment(V(127, 6.6, 0), V(191, 6.6, 0)), False)
sketch4.addGeometry(Part.ArcOfCircle(Part.Circle(V(191, 9.8, 0), V(0, 0, 1), 3.2), math.radians(-90), math.radians(0)), False)
sketch4.addGeometry(Part.LineSegment(V(194.2, 9.8, 0), V(194.2, 82.7, 0)), False)
sketch4.addGeometry(Part.ArcOfCircle(Part.Circle(V(191, 82.7, 0), V(0, 0, 1), 3.2), math.radians(0), math.radians(90)), False)
sketch4.addGeometry(Part.LineSegment(V(191, 85.9, 0), V(187.8, 85.9, 0)), False)
sketch4.addGeometry(Part.ArcOfCircle(Part.Circle(V(187.8, 82.7, 0), V(0, 0, 1), 3.2), math.radians(90), math.radians(180)), False)
sketch4.addGeometry(Part.LineSegment(V(184.7, 82.7, 0), V(184.7, 40.3, 0)), False)
sketch4.addGeometry(Part.LineSegment(V(184.7, 40.3, 0), V(172, 40.3, 0)), False)
sketch4.addGeometry(Part.LineSegment(V(172, 40.3, 0), V(172, 149.2, 0)), False)
sketch4.addGeometry(Part.ArcOfCircle(Part.Circle(V(168.8, 149.2, 0), V(0, 0, 1), 3.2), math.radians(0), math.radians(90)), False)
sketch4.addGeometry(Part.LineSegment(V(168.8, 152.4, 0), V(165.6, 152.4, 0)), False)
sketch4.addGeometry(Part.ArcOfCircle(Part.Circle(V(165.6, 149.2, 0), V(0, 0, 1), 3.2), math.radians(90), math.radians(180)), False)
sketch4.addGeometry(Part.LineSegment(V(162.4, 149.2, 0), V(162.4, 87.6, 0)), False)
sketch4.addGeometry(Part.LineSegment(V(162.4, 87.6, 0), V(155.8, 87.6, 0)), False)
sketch4.addGeometry(Part.LineSegment(V(155.8, 87.6, 0), V(155.8, 149.2, 0)), False)
sketch4.addGeometry(Part.ArcOfCircle(Part.Circle(V(152.7, 149.2, 0), V(0, 0, 1), 3.2), math.radians(0), math.radians(90)), False)
sketch4.addGeometry(Part.LineSegment(V(152.7, 152.4, 0), V(19.3, 152.4, 0)), False)
sketch4.addGeometry(Part.ArcOfCircle(Part.Circle(V(19.3, 149.2, 0), V(0, 0, 1), 3.2), math.radians(90), math.radians(180)), False)
sketch4.addGeometry(Part.LineSegment(V(16.1, 149.2, 0), V(16.1, 87.6, 0)), False)
sketch4.addGeometry(Part.LineSegment(V(16.1, 87.6, 0), V(9.5, 87.6, 0)), False)
sketch4.addGeometry(Part.LineSegment(V(9.5, 87.6, 0), V(9.5, 149.2, 0)), False)
sketch4.addGeometry(Part.ArcOfCircle(Part.Circle(V(6.3, 149.2, 0), V(0, 0, 1), 3.2), math.radians(0), math.radians(90)), False)
sketch4.addGeometry(Part.LineSegment(V(6.3, 152.4, 0), V(3.2, 152.4, 0)), False)
sketch4.addGeometry(Part.ArcOfCircle(Part.Circle(V(3.2, 149.2, 0), V(0, 0, 1), 3.2), math.radians(90), math.radians(180)), False)
sketch4.addConstraint(Sketcher.Constraint("Tangent", 0, 2, 1, 1))
sketch4.addConstraint(Sketcher.Constraint("Tangent", 1, 2, 2, 1))
sketch4.addConstraint(Sketcher.Constraint("Coincident", 2, 2, 3, 1))
sketch4.addConstraint(Sketcher.Constraint("Coincident", 3, 2, 4, 1))
sketch4.addConstraint(Sketcher.Constraint("Tangent", 4, 2, 5, 1))
sketch4.addConstraint(Sketcher.Constraint("Tangent", 5, 2, 6, 1))
sketch4.addConstraint(Sketcher.Constraint("Tangent", 6, 2, 7, 1))
sketch4.addConstraint(Sketcher.Constraint("Tangent", 7, 2, 8, 1))
sketch4.addConstraint(Sketcher.Constraint("Coincident", 8, 2, 9, 2))
sketch4.addConstraint(Sketcher.Constraint("Coincident", 9, 1, 10, 1))
sketch4.addConstraint(Sketcher.Constraint("Tangent", 10, 2, 11, 1))
sketch4.addConstraint(Sketcher.Constraint("Tangent", 11, 2, 12, 1))
sketch4.addConstraint(Sketcher.Constraint("Tangent", 12, 2, 13, 1))
sketch4.addConstraint(Sketcher.Constraint("Tangent", 13, 2, 14, 1))
sketch4.addConstraint(Sketcher.Constraint("Coincident", 14, 2, 15, 1))
sketch4.addConstraint(Sketcher.Constraint("Coincident", 15, 2, 16, 1))
sketch4.addConstraint(Sketcher.Constraint("Tangent", 16, 2, 17, 1))
sketch4.addConstraint(Sketcher.Constraint("Tangent", 17, 2, 18, 1))
sketch4.addConstraint(Sketcher.Constraint("Tangent", 18, 2, 19, 1))
sketch4.addConstraint(Sketcher.Constraint("Tangent", 19, 2, 20, 1))
sketch4.addConstraint(Sketcher.Constraint("Tangent", 20, 2, 21, 1))
sketch4.addConstraint(Sketcher.Constraint("Tangent", 21, 2, 22, 1))
sketch4.addConstraint(Sketcher.Constraint("Coincident", 22, 2, 23, 1))
sketch4.addConstraint(Sketcher.Constraint("Coincident", 23, 2, 24, 1))
sketch4.addConstraint(Sketcher.Constraint("Tangent", 24, 2, 25, 1))
sketch4.addConstraint(Sketcher.Constraint("Tangent", 25, 2, 26, 1))
sketch4.addConstraint(Sketcher.Constraint("Tangent", 26, 2, 27, 1))
sketch4.addConstraint(Sketcher.Constraint("Tangent", 27, 2, 28, 1))
sketch4.addConstraint(Sketcher.Constraint("Coincident", 28, 2, 29, 1))
sketch4.addConstraint(Sketcher.Constraint("Coincident", 29, 2, 30, 1))
sketch4.addConstraint(Sketcher.Constraint("Tangent", 30, 2, 31, 1))
sketch4.addConstraint(Sketcher.Constraint("Tangent", 31, 2, 32, 1))
sketch4.addConstraint(Sketcher.Constraint("Tangent", 32, 2, 33, 1))
sketch4.addConstraint(Sketcher.Constraint("Tangent", 33, 2, 34, 1))
sketch4.addConstraint(Sketcher.Constraint("Coincident", 34, 2, 35, 1))
sketch4.addConstraint(Sketcher.Constraint("Coincident", 35, 2, 36, 1))
sketch4.addConstraint(Sketcher.Constraint("Tangent", 36, 2, 37, 1))
sketch4.addConstraint(Sketcher.Constraint("Tangent", 37, 2, 38, 1))
sketch4.addConstraint(Sketcher.Constraint("Tangent", 38, 2, 39, 1))
sketch4.addConstraint(Sketcher.Constraint("Tangent", 39, 2, 0, 1))
sketch4.addConstraint(Sketcher.Constraint("Vertical", 0))
sketch4.addConstraint(Sketcher.Constraint("Horizontal", 2))
sketch4.addConstraint(Sketcher.Constraint("Vertical", 3))
sketch4.addConstraint(Sketcher.Constraint("Horizontal", 4))
sketch4.addConstraint(Sketcher.Constraint("Vertical", 6))
sketch4.addConstraint(Sketcher.Constraint("Horizontal", 8))
sketch4.addConstraint(Sketcher.Constraint("Horizontal", 10))
sketch4.addConstraint(Sketcher.Constraint("Vertical", 12))
sketch4.addConstraint(Sketcher.Constraint("Horizontal", 14))
sketch4.addConstraint(Sketcher.Constraint("Vertical", 15))
sketch4.addConstraint(Sketcher.Constraint("Horizontal", 16))
sketch4.addConstraint(Sketcher.Constraint("Vertical", 18))
sketch4.addConstraint(Sketcher.Constraint("Horizontal", 20))
sketch4.addConstraint(Sketcher.Constraint("Vertical", 22))
sketch4.addConstraint(Sketcher.Constraint("Horizontal", 23))
sketch4.addConstraint(Sketcher.Constraint("Vertical", 24))
sketch4.addConstraint(Sketcher.Constraint("Horizontal", 26))
sketch4.addConstraint(Sketcher.Constraint("Vertical", 28))
sketch4.addConstraint(Sketcher.Constraint("Horizontal", 29))
sketch4.addConstraint(Sketcher.Constraint("Vertical", 30))
sketch4.addConstraint(Sketcher.Constraint("Horizontal", 32))
sketch4.addConstraint(Sketcher.Constraint("Vertical", 34))
sketch4.addConstraint(Sketcher.Constraint("Horizontal", 35))
sketch4.addConstraint(Sketcher.Constraint("Vertical", 36))
sketch4.addConstraint(Sketcher.Constraint("Horizontal", 38))
sketch4.addConstraint(Sketcher.Constraint("Equal", 1, 5))
sketch4.addConstraint(Sketcher.Constraint("Equal", 5, 7))
sketch4.addConstraint(Sketcher.Constraint("Equal", 7, 11))
sketch4.addConstraint(Sketcher.Constraint("Equal", 11, 13))
sketch4.addConstraint(Sketcher.Constraint("Equal", 13, 17))
sketch4.addConstraint(Sketcher.Constraint("Equal", 17, 19))
sketch4.addConstraint(Sketcher.Constraint("Equal", 19, 21))
sketch4.addConstraint(Sketcher.Constraint("Equal", 21, 25))
sketch4.addConstraint(Sketcher.Constraint("Equal", 25, 27))
sketch4.addConstraint(Sketcher.Constraint("Equal", 27, 31))
sketch4.addConstraint(Sketcher.Constraint("Equal", 31, 33))
sketch4.addConstraint(Sketcher.Constraint("Equal", 33, 37))
sketch4.addConstraint(Sketcher.Constraint("Equal", 37, 39))
sketch4.addConstraint(Sketcher.Constraint("PointOnObject", 0, 2, -2))
sketch4.addConstraint(Sketcher.Constraint("PointOnObject", 3, 2, -1))
sketch4.addConstraint(Sketcher.Constraint("PointOnObject", 5, 2, -2))
sketch4.addConstraint(Sketcher.Constraint("PointOnObject", 13, 2, -1))
sketch4.addConstraint(Sketcher.Constraint("Horizontal", 7, 3, 11, 3))
sketch4.addConstraint(Sketcher.Constraint("Horizontal", 1, 3, 17, 3))
sketch4.addConstraint(Sketcher.Constraint("Horizontal", 27, 3, 31, 3))
sketch4.addConstraint(Sketcher.Constraint("Horizontal", 33, 3, 37, 3))
sketch4.addConstraint(Sketcher.Constraint("Horizontal", 29, 2, 34, 2))
sketch4.addConstraint(Sketcher.Constraint("Vertical", 13, 3, 25, 3))
sketch4.addConstraint(Sketcher.Constraint("Equal", 8, 10))
sketch4.addConstraint(Sketcher.Constraint("Equal", 20, 26))
sketch4.addConstraint(Sketcher.Constraint("Equal", 29, 35))
sketch4.addConstraint(Sketcher.Constraint("Equal", 26, 38))
sketch4.addConstraint(Sketcher.Constraint("Equal", 35, 3))
sketch4.addConstraint(Sketcher.Constraint("DistanceX", 23, 2, 23, 1, Q("0.5 in")))
sketch4.addConstraint(Sketcher.Constraint("DistanceY", 7, 2, -1, 1, Q("1 in")))
sketch4.addConstraint(Sketcher.Constraint("DistanceX", -1, 1, 14, 2, Q("5 in")))
sketch4.addConstraint(Sketcher.Constraint("DistanceY", -1, 1, 25, 2, Q("6 in")))
sketch4.addConstraint(Sketcher.Constraint("Radius", 1, Q("0.125 in")))
sketch4.addConstraint(Sketcher.Constraint("DistanceX", 27, 3, 19, 3, Q("1 in")))
sketch4.addConstraint(Sketcher.Constraint("DistanceX", 16, 1, 16, 2, Q("2.52 in")))
sketch4.addConstraint(Sketcher.Constraint("DistanceX", 29, 2, 29, 1, Q("0.26 in")))
sketch4.addConstraint(Sketcher.Constraint("DistanceX", -1, 1, 8, 2, Q("1.5 in")))
sketch4.addConstraint(Sketcher.Constraint("DistanceX", 2, 1, 2, 2, Q("1.625 in")))
sketch4.addConstraint(Sketcher.Constraint("Radius", 9, Q("60.456626 mm")))
sketch4.addConstraint(Sketcher.Constraint("DistanceY", 18, 1, 18, 2, Q("72.92041 mm")))
sketch4.addConstraint(Sketcher.Constraint("DistanceY", 28, 2, 28, 1, Q("61.665411 mm")))
sketch4.addConstraint(Sketcher.Constraint("DistanceY", 22, 2, 22, 1, Q("42.404655 mm")))
sketch4.setExpression("Constraints[93]", "Params.sketch4_width")
sketch4.setExpression("Constraints[97]", "Params.sketch4_radius")
sketch4.setExpression("Constraints[99]", "Params.sketch4_width2")
sketch4.setExpression("Constraints[100]", "Params.sketch4_width3")
sketch4.setExpression("Constraints[102]", "Params.sketch4_width4")
pad4 = body3.newObject("PartDesign::Pad", "Pad003")
pad4.Profile = sketch4
pad4.setExpression("Length", "Params.pad4_length")

doc.recompute()
